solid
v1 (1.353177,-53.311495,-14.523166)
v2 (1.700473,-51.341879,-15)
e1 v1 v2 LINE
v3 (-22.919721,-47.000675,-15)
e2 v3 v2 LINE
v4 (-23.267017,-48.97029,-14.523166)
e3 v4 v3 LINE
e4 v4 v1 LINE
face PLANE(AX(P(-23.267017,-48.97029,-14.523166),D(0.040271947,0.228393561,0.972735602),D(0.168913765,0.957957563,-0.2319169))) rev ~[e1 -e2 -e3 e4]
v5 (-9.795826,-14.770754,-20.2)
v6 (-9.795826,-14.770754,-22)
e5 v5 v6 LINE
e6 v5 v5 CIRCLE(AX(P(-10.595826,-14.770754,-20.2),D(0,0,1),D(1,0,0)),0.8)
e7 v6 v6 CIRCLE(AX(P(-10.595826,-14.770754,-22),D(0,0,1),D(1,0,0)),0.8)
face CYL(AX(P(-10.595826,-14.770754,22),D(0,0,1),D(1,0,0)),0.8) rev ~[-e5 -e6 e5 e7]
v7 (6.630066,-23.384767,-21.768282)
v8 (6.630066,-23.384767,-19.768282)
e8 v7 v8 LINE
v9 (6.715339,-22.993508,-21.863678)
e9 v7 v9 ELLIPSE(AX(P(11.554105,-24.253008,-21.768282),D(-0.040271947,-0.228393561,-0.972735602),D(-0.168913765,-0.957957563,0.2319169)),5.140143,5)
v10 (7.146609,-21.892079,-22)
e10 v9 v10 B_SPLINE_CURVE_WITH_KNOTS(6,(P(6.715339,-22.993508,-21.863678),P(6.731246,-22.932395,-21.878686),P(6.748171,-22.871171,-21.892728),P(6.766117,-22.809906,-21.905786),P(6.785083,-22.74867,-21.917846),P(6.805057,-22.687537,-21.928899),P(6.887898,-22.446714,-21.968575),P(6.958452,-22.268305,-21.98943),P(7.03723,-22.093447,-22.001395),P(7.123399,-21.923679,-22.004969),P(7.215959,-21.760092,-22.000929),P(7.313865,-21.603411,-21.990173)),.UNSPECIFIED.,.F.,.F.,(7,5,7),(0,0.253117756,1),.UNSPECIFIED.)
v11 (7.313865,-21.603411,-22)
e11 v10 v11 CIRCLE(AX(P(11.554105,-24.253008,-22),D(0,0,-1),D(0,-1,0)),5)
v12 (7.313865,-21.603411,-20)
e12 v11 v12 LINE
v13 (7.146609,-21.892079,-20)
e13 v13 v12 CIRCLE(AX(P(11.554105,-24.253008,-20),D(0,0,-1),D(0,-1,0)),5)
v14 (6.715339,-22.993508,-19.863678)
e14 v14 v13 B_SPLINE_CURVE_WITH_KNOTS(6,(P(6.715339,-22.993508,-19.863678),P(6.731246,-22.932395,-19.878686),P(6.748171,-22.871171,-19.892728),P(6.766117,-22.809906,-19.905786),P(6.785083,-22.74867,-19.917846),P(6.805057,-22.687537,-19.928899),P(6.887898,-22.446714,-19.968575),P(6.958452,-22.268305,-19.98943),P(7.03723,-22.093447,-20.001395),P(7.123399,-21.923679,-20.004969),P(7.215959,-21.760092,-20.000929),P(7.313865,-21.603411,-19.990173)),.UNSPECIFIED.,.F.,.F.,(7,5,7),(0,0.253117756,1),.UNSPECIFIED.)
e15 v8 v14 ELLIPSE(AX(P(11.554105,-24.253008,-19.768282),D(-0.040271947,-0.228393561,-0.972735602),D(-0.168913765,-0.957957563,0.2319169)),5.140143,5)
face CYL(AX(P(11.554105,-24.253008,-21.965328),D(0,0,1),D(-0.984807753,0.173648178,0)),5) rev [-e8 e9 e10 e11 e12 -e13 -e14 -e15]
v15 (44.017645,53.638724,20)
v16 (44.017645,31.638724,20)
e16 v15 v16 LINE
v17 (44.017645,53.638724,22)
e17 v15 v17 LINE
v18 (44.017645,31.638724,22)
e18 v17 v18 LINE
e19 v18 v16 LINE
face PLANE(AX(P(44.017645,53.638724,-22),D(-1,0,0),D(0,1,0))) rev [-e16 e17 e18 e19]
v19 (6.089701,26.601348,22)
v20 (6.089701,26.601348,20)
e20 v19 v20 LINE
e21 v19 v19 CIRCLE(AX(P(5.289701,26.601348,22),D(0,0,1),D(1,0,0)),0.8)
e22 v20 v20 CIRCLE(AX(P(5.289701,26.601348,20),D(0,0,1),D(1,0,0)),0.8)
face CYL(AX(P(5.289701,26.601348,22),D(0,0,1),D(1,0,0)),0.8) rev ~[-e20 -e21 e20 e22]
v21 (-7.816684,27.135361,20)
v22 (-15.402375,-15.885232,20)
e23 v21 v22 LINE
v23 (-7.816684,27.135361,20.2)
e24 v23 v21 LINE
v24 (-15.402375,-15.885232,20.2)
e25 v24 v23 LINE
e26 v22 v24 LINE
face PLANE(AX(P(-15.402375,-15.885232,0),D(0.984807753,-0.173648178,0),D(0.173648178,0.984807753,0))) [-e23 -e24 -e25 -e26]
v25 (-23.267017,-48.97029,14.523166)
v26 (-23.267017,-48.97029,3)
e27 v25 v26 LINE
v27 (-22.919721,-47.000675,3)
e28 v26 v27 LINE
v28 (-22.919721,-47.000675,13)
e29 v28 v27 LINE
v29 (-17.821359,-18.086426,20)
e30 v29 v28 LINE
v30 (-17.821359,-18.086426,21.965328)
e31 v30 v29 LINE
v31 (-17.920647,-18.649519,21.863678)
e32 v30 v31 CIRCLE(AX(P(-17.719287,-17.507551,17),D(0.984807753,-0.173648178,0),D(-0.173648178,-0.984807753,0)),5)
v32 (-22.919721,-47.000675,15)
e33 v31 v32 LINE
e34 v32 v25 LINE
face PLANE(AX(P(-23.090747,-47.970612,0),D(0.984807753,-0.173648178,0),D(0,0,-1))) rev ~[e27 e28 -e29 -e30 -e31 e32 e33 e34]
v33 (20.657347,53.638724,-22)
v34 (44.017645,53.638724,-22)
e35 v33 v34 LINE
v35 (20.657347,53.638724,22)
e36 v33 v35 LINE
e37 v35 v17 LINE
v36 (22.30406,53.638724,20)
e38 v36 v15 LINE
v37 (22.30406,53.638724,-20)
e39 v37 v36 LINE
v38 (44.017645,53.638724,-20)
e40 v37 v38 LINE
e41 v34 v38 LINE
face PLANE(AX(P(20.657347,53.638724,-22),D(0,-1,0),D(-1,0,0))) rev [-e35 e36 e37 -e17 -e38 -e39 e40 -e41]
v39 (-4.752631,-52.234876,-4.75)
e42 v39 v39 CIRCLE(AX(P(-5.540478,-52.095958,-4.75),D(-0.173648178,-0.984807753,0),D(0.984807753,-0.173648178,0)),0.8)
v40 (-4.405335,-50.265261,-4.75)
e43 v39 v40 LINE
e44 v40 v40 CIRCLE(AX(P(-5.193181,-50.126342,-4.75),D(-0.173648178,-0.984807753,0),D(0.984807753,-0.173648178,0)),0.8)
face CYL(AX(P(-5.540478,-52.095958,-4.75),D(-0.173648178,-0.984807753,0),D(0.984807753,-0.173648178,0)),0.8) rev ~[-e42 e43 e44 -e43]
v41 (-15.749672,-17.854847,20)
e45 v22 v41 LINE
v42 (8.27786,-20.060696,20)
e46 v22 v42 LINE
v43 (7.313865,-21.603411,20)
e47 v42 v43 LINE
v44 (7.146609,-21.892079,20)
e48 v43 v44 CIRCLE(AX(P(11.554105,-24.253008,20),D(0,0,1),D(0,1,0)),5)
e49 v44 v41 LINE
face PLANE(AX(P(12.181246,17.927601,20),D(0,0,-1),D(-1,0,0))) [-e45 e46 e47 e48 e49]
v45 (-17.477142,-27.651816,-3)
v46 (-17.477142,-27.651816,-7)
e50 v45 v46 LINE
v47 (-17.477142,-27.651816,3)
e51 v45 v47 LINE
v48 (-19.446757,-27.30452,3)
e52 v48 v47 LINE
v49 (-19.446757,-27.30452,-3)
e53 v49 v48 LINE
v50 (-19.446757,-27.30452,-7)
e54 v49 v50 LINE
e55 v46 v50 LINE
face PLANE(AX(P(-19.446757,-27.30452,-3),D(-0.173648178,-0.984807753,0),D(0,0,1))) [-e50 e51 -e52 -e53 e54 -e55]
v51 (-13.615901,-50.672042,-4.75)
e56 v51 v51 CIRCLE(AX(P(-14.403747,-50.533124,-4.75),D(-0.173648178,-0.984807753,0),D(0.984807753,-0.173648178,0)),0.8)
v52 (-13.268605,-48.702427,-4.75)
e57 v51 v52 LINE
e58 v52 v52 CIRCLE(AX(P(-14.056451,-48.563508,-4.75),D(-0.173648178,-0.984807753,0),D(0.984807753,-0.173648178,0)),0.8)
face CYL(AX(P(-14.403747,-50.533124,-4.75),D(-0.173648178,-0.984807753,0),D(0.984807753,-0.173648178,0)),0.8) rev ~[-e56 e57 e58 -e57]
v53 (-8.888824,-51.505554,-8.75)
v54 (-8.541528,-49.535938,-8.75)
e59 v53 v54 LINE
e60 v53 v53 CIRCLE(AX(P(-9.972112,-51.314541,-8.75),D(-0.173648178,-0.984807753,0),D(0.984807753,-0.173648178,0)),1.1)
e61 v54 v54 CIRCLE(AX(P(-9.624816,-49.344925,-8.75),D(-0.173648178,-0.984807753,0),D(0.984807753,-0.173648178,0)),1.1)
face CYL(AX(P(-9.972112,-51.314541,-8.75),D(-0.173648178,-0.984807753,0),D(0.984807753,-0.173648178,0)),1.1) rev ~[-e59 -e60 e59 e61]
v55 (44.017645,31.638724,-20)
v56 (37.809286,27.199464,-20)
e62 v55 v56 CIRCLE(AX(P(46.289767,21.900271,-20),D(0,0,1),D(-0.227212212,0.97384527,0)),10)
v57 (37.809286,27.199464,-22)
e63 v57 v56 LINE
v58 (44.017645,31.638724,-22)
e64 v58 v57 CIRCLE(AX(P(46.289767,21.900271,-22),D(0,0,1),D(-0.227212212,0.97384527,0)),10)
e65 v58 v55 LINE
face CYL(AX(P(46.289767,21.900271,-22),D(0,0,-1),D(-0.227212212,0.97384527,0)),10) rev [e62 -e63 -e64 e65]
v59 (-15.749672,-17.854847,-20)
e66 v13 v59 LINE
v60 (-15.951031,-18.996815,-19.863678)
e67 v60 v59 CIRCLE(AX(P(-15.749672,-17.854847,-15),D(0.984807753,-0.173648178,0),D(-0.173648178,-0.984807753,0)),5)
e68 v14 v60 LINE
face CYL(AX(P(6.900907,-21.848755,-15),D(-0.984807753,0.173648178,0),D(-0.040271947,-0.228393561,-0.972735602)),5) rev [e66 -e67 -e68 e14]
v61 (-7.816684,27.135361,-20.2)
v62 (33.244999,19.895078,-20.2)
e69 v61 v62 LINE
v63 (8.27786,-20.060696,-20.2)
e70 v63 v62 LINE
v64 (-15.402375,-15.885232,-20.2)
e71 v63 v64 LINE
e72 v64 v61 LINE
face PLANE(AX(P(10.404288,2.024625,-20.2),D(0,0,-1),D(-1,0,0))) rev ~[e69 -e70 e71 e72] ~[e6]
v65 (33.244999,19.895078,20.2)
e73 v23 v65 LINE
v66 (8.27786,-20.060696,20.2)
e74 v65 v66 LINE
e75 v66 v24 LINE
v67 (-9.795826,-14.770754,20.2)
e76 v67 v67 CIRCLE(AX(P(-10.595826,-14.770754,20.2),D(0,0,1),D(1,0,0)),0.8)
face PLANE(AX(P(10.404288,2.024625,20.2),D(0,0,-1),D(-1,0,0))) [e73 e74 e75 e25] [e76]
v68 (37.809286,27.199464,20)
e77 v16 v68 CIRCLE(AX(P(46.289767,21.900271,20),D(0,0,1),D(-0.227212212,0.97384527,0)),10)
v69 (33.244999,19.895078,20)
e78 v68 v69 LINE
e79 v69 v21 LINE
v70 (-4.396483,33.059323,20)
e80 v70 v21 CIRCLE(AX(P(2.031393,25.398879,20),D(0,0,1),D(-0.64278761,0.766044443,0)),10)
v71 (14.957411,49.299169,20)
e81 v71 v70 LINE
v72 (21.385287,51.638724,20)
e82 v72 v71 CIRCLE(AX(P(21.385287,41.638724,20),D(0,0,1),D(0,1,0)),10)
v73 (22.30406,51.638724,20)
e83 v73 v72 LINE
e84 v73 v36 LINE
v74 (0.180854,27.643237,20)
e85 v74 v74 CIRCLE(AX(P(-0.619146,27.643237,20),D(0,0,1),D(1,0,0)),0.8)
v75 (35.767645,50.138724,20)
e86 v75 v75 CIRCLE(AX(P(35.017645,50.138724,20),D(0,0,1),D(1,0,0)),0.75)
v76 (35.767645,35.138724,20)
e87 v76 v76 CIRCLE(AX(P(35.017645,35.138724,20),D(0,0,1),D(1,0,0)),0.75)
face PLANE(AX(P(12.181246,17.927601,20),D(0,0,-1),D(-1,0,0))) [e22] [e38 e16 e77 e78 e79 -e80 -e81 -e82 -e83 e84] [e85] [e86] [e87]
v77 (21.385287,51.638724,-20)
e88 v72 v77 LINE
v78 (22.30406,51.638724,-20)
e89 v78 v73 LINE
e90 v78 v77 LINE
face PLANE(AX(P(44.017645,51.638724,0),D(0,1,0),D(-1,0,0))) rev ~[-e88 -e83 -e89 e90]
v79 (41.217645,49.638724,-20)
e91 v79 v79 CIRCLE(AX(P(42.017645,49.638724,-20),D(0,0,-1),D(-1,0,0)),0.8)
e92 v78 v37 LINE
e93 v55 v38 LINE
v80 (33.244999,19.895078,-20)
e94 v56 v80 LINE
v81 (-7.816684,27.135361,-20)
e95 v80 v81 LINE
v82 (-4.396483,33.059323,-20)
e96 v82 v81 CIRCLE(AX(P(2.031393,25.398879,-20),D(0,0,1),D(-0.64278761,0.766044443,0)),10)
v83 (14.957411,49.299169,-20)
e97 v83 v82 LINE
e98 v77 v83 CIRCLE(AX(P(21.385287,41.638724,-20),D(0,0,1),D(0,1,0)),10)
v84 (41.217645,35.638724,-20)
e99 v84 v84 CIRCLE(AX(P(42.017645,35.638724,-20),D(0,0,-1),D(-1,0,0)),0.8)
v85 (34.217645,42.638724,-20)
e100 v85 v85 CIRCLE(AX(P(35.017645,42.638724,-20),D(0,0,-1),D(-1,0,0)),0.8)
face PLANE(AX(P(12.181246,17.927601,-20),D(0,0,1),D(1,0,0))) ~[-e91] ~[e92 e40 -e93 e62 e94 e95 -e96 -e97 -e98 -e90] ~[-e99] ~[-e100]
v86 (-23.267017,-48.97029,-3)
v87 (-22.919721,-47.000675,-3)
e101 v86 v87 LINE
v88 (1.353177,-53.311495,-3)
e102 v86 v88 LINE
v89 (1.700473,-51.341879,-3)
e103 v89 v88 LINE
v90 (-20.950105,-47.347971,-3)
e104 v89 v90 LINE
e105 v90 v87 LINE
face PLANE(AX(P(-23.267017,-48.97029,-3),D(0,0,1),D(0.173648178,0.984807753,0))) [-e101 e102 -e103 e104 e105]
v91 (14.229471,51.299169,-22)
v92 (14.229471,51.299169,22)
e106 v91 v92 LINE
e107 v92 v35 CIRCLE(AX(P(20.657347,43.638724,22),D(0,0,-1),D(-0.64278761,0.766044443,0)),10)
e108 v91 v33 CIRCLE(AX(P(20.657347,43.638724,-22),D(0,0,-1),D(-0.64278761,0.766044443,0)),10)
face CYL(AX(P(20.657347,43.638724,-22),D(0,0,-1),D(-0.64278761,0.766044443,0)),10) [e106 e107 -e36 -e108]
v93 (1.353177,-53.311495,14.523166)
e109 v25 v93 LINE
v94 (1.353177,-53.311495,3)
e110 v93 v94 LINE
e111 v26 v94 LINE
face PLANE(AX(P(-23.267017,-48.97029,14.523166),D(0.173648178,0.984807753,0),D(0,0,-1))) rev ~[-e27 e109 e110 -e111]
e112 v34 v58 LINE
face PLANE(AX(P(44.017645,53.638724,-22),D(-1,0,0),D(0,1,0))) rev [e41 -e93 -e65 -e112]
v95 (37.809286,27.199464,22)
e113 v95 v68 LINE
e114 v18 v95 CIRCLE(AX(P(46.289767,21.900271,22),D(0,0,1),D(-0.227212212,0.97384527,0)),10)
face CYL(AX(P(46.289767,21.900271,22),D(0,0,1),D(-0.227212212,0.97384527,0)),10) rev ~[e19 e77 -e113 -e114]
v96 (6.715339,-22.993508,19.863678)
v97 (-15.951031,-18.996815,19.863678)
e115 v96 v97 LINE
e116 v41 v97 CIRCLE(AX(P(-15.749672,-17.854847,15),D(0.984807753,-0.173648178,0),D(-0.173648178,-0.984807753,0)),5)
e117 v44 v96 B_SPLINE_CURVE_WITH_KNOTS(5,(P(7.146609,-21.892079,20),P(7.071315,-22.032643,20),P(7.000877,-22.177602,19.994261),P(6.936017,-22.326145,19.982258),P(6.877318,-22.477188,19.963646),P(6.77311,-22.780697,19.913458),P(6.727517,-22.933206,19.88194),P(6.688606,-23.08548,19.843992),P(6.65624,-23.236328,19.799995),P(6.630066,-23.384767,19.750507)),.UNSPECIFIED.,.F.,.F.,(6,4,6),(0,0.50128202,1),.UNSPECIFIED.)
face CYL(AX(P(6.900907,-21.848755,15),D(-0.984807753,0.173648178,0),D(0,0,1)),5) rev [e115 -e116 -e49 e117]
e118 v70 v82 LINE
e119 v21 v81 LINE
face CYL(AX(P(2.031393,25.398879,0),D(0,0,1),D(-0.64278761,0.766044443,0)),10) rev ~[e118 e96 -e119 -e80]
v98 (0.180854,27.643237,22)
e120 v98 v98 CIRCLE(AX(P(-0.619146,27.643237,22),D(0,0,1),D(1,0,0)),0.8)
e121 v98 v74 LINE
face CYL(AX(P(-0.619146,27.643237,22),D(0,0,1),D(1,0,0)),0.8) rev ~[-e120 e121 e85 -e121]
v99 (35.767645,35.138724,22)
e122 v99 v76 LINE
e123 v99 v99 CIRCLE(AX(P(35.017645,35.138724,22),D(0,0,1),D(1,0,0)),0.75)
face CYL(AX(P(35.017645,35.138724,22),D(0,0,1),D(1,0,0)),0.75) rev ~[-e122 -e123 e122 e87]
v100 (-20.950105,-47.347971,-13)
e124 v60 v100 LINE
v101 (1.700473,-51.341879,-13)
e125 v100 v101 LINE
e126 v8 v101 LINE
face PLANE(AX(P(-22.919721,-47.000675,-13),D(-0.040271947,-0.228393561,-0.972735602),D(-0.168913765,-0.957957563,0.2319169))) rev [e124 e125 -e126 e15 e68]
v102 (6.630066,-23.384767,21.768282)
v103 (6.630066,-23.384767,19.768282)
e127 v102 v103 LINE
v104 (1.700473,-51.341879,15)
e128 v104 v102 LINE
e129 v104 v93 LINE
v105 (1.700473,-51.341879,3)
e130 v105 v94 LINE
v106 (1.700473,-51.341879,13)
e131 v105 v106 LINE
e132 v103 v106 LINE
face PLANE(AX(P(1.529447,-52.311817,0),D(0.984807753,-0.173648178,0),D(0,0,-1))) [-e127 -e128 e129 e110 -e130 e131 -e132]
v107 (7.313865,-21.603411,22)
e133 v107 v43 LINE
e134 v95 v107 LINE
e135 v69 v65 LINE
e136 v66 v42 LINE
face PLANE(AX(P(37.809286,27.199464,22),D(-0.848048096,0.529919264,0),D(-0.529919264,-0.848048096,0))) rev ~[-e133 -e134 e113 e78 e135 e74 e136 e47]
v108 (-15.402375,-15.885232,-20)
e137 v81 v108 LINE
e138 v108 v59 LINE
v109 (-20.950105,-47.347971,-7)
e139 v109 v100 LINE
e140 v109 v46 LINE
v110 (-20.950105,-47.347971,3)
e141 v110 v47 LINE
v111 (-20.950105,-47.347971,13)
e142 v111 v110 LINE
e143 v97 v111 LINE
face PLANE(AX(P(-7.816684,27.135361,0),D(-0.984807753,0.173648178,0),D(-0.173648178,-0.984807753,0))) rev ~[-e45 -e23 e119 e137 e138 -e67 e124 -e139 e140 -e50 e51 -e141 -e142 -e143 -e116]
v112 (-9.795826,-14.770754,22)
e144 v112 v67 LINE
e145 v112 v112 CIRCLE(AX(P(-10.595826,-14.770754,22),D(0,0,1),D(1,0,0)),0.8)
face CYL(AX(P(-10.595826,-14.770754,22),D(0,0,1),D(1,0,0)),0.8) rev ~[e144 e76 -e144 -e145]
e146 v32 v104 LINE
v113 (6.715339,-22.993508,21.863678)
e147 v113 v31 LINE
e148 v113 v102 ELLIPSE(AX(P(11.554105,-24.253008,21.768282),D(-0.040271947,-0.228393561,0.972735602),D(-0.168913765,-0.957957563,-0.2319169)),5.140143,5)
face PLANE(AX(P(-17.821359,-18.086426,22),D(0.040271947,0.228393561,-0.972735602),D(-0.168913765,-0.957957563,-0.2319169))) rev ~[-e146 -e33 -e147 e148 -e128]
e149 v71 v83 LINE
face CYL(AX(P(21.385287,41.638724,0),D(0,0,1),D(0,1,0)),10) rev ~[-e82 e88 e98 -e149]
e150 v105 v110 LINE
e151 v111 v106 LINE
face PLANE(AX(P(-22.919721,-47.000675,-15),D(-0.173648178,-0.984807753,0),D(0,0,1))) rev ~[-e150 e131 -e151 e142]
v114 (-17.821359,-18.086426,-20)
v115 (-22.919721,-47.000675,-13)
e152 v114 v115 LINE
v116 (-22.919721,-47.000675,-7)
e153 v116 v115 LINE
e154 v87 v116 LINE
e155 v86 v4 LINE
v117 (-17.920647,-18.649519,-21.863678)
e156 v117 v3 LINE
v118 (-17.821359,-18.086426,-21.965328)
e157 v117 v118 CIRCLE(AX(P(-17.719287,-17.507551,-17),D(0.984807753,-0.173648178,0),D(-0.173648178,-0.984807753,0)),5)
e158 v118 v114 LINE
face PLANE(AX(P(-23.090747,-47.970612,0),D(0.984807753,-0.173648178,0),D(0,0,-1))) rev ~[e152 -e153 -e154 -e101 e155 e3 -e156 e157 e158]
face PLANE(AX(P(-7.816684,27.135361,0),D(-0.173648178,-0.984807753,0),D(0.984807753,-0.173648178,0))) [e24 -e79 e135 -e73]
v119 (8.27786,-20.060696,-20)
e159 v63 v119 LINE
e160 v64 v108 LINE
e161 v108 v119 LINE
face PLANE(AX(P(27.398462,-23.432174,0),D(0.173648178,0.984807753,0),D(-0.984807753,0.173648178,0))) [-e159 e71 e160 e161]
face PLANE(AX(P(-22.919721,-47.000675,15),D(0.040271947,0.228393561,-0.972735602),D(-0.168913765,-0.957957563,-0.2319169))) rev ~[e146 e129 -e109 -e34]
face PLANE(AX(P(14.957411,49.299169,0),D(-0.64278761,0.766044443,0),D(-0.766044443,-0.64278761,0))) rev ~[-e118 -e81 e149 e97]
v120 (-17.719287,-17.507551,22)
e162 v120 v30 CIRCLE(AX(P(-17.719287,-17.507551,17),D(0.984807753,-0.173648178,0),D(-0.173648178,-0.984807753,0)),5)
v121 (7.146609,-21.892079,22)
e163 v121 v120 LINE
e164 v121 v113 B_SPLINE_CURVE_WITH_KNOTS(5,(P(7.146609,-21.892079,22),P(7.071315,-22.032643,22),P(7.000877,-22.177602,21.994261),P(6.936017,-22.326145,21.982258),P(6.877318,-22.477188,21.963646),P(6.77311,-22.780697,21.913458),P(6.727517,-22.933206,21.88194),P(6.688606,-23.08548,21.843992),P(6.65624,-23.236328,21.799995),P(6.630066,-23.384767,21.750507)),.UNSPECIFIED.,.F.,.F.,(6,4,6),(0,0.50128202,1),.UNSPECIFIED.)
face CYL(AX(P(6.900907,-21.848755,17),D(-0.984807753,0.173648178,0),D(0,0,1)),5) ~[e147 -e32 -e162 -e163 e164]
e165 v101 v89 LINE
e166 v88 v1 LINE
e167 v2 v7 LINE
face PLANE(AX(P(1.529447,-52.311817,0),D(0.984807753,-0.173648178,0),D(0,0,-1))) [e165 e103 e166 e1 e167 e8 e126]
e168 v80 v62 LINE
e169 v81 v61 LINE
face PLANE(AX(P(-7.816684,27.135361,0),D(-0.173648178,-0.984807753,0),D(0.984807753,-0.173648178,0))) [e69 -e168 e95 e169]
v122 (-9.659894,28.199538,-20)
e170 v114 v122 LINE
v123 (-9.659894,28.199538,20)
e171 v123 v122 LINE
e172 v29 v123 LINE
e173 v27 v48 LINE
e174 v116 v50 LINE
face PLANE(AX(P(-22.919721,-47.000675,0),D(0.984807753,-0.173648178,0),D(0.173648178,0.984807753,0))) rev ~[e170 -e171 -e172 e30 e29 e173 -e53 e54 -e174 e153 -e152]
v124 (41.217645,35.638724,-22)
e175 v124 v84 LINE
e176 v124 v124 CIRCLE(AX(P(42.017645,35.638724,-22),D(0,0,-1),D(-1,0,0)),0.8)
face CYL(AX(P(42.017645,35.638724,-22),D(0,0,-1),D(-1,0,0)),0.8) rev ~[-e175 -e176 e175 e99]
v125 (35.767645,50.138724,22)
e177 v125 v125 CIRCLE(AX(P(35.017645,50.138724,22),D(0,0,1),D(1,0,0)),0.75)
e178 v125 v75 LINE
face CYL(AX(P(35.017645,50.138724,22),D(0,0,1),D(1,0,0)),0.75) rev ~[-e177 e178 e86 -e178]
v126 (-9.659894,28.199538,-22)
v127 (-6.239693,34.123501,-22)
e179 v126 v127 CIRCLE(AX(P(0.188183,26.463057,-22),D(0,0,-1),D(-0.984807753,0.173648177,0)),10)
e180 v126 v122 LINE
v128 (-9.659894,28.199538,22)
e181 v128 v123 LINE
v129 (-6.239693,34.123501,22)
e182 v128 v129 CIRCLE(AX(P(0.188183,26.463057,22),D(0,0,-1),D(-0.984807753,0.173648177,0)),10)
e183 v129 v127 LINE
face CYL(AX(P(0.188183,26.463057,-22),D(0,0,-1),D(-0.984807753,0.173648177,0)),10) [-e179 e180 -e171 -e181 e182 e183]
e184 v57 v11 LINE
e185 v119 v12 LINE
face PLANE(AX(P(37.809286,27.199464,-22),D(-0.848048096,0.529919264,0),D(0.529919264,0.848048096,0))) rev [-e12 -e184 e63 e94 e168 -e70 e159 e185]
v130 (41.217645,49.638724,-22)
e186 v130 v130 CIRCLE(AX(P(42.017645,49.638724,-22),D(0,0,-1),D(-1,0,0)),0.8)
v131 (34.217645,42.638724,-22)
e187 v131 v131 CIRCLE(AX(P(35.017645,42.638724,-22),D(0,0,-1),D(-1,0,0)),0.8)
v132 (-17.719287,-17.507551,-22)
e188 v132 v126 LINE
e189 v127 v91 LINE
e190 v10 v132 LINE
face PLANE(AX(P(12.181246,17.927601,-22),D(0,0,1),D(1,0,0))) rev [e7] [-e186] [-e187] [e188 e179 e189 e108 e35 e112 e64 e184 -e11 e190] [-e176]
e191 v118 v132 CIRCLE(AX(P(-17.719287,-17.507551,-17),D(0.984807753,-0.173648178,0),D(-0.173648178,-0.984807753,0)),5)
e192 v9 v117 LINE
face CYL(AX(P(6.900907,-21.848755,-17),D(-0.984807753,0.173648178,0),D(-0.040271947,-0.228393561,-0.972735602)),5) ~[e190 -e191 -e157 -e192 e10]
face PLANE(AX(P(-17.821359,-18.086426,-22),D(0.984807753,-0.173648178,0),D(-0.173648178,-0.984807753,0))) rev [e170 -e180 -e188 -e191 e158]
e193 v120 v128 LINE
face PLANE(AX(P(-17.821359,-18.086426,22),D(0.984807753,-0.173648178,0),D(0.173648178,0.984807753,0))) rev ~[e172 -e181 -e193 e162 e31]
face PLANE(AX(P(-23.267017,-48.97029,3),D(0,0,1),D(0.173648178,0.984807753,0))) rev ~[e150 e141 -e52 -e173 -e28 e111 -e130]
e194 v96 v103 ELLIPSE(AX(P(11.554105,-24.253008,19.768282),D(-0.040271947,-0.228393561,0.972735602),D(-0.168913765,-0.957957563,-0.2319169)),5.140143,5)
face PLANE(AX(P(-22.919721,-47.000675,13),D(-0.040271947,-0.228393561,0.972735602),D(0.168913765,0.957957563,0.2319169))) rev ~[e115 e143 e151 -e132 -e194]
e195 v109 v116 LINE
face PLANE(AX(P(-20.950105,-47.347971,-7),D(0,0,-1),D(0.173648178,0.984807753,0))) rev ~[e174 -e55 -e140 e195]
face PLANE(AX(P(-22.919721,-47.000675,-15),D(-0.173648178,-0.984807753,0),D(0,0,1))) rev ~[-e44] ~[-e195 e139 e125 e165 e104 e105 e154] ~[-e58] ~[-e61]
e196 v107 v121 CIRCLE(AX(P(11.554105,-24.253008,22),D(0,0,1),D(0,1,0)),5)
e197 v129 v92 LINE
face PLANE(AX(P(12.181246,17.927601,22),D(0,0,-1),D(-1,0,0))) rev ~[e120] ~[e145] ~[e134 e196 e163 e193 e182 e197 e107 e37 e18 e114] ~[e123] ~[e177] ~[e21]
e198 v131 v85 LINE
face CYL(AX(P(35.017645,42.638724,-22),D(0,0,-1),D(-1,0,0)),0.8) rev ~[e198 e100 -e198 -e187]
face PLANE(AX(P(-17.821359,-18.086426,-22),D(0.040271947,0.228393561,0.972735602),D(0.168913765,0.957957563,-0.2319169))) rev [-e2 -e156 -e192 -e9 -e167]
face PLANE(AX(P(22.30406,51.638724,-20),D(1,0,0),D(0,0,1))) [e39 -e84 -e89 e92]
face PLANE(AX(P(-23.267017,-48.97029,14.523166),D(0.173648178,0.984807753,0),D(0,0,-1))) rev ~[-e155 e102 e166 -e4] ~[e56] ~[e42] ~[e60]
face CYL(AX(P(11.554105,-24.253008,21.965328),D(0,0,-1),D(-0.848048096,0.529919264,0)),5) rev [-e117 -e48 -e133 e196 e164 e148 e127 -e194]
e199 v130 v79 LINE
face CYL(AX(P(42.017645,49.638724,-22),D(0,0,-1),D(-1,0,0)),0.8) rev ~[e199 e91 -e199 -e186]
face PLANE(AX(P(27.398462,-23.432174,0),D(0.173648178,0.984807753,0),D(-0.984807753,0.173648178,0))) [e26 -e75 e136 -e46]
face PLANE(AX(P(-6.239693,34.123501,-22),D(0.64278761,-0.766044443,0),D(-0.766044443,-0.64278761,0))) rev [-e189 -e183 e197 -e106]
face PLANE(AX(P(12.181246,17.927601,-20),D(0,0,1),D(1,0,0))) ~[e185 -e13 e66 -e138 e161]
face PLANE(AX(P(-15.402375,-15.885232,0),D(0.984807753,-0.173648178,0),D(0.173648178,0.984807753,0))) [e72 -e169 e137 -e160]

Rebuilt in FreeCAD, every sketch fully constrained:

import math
import FreeCAD as App
import Part
import Sketcher
Q = App.Units.Quantity


def edges_at(feature, points):
    """Names of the edges that pass closest to the given points."""
    edges = feature.Shape.Edges
    near = lambda p: min(range(len(edges)), key=lambda i: edges[i].distToShape(Part.Vertex(*p))[0])
    return sorted({f"Edge{near(p) + 1}" for p in points})


def add_polygon(sketch, points):
    """Adds a closed chain of lines whose ends are joined by coincident constraints."""
    first, n = sketch.GeometryCount, len(points)
    for a, b in zip(points, points[1:] + points[:1]):
        sketch.addGeometry(Part.LineSegment(App.Vector(*a, 0), App.Vector(*b, 0)), False)
    for i in range(n):
        sketch.addConstraint(Sketcher.Constraint("Coincident", first + i, 2, first + (i + 1) % n, 1))

doc = App.newDocument("Part")
body = doc.addObject("PartDesign::Body", "Body")

# Sketch on XY plane
sketch1 = body.newObject("Sketcher::SketchObject", "Sketch")
sketch1.AttachmentSupport = (doc.getObject("XY_Plane"), [""])
sketch1.MapMode = "FlatFace"
sketch1.addGeometry(Part.LineSegment(App.Vector(44, 53.6, 0), App.Vector(20.7, 53.6, 0)), False)
sketch1.addGeometry(Part.ArcOfCircle(Part.Circle(App.Vector(20.7, 43.6, 0), App.Vector(0, 0, 1), 10), math.radians(90), math.radians(130)), False)
sketch1.addGeometry(Part.LineSegment(App.Vector(14.2, 51.3, 0), App.Vector(-6.2, 34.1, 0)), False)
sketch1.addGeometry(Part.ArcOfCircle(Part.Circle(App.Vector(0.2, 26.5, 0), App.Vector(0, 0, 1), 10), math.radians(130), math.radians(170)), False)
sketch1.addGeometry(Part.LineSegment(App.Vector(-9.7, 28.2, 0), App.Vector(-22.9, -47, 0)), False)
sketch1.addGeometry(Part.LineSegment(App.Vector(-22.9, -47, 0), App.Vector(-21, -47.3, 0)), False)
sketch1.addGeometry(Part.LineSegment(App.Vector(-21, -47.3, 0), App.Vector(-7.8, 27.1, 0)), False)
sketch1.addGeometry(Part.ArcOfCircle(Part.Circle(App.Vector(2, 25.4, 0), App.Vector(0, 0, 1), 10), math.radians(130), math.radians(170)), False)
sketch1.addGeometry(Part.LineSegment(App.Vector(-4.4, 33.1, 0), App.Vector(15, 49.3, 0)), False)
sketch1.addGeometry(Part.ArcOfCircle(Part.Circle(App.Vector(21.4, 41.6, 0), App.Vector(0, 0, 1), 10), math.radians(90), math.radians(130)), False)
sketch1.addGeometry(Part.LineSegment(App.Vector(21.4, 51.6, 0), App.Vector(44, 51.6, 0)), False)
sketch1.addGeometry(Part.LineSegment(App.Vector(44, 51.6, 0), App.Vector(44, 53.6, 0)), False)
sketch1.addConstraint(Sketcher.Constraint("Tangent", 0, 2, 1, 1))
sketch1.addConstraint(Sketcher.Constraint("Tangent", 1, 2, 2, 1))
sketch1.addConstraint(Sketcher.Constraint("Tangent", 2, 2, 3, 1))
sketch1.addConstraint(Sketcher.Constraint("Tangent", 3, 2, 4, 1))
sketch1.addConstraint(Sketcher.Constraint("Coincident", 4, 2, 5, 1))
sketch1.addConstraint(Sketcher.Constraint("Coincident", 5, 2, 6, 1))
sketch1.addConstraint(Sketcher.Constraint("Tangent", 6, 2, 7, 2))
sketch1.addConstraint(Sketcher.Constraint("Tangent", 7, 1, 8, 1))
sketch1.addConstraint(Sketcher.Constraint("Tangent", 8, 2, 9, 2))
sketch1.addConstraint(Sketcher.Constraint("Tangent", 9, 1, 10, 1))
sketch1.addConstraint(Sketcher.Constraint("Coincident", 10, 2, 11, 1))
sketch1.addConstraint(Sketcher.Constraint("Coincident", 11, 2, 0, 1))
sketch1.addConstraint(Sketcher.Constraint("Horizontal", 0))
sketch1.addConstraint(Sketcher.Constraint("Horizontal", 10))
sketch1.addConstraint(Sketcher.Constraint("Vertical", 11))
sketch1.addConstraint(Sketcher.Constraint("Equal", 1, 3))
sketch1.addConstraint(Sketcher.Constraint("Equal", 3, 7))
sketch1.addConstraint(Sketcher.Constraint("Equal", 7, 9))
sketch1.addConstraint(Sketcher.Constraint("Perpendicular", 4, 5))
sketch1.addConstraint(Sketcher.Constraint("Perpendicular", 5, 6))
sketch1.addConstraint(Sketcher.Constraint("Parallel", 2, 8))
sketch1.addConstraint(Sketcher.Constraint("Radius", 1, 10.0))
sketch1.addConstraint(Sketcher.Constraint("DistanceY", 11, 1, 11, 2, 2.0))
sketch1.addConstraint(Sketcher.Constraint("Angle", 2, Q("-140 deg")))
sketch1.addConstraint(Sketcher.Constraint("Angle", 4, Q("-100 deg")))
sketch1.addConstraint(Sketcher.Constraint("Distance", 5, 2.0))
sketch1.addConstraint(Sketcher.Constraint("DistanceY", -1, 1, 2, 2, 34.123501))
sketch1.addConstraint(Sketcher.Constraint("DistanceY", 4, 2, 9, 3, 88.639399))
sketch1.addConstraint(Sketcher.Constraint("DistanceX", 5, 2, 7, 3, 22.981499))
sketch1.addConstraint(Sketcher.Constraint("DistanceX", 0, 2, 0, 1, 23.360298))
sketch1.addConstraint(Sketcher.Constraint("DistanceX", 10, 1, 10, 2, 22.632357))
sketch1.addConstraint(Sketcher.Constraint("DistanceX", -1, 1, 1, 2, 14.229471))
pad1 = body.newObject("PartDesign::Pad", "Pad")
pad1.Profile = sketch1
pad1.Length = 40
pad1.Midplane = True

# Sketch on an angled plane
sketch2 = body.newObject("Sketcher::SketchObject", "Sketch001")
sketch2.Placement = App.Placement(App.Vector(-14.191018, 2.502259, 0), App.Rotation(App.Vector(0, 0, 1), App.Vector(0.173648178, 0.984807753, 0), App.Vector(-0.984807753, 0.173648178, 0), "ZXY"))
add_polygon(sketch2, [(13, -50), (20, -50), (20, -21)])  # lines 0-2
sketch2.addConstraint(Sketcher.Constraint("Horizontal", 0))
sketch2.addConstraint(Sketcher.Constraint("Vertical", 1))
sketch2.addConstraint(Sketcher.Constraint("DistanceX", 0, 1, 0, 2, 7.0))
sketch2.addConstraint(Sketcher.Constraint("DistanceX", -1, 1, 0, 2, 20.0))
sketch2.addConstraint(Sketcher.Constraint("DistanceY", 1, 2, -1, 1, 20.906299))
sketch2.addConstraint(Sketcher.Constraint("DistanceY", 1, 1, 1, 2, 29.360298))
pocket1 = body.newObject("PartDesign::Pocket", "Pocket")
pocket1.Profile = sketch2
pocket1.Length = 2
doc.recompute()

mirrored = body.newObject("PartDesign::Mirrored", "Mirrored")
mirrored.Originals = [pocket1]
mirrored.MirrorPlane = (doc.getObject("XY_Plane"), [""])
body.Tip = mirrored

# Sketch on XY plane
sketch3 = body.newObject("Sketcher::SketchObject", "Sketch002")
sketch3.AttachmentSupport = (doc.getObject("XY_Plane"), [""])
sketch3.MapMode = "FlatFace"
sketch3.AttachmentOffset = App.Placement(App.Vector(0, 0, 22), App.Rotation())
sketch3.addGeometry(Part.LineSegment(App.Vector(44, 32, 0), App.Vector(44, 54, 0)), False)
sketch3.addGeometry(Part.LineSegment(App.Vector(44, 54, 0), App.Vector(21, 54, 0)), False)
sketch3.addGeometry(Part.ArcOfCircle(Part.Circle(App.Vector(21, 44, 0), App.Vector(0, 0, 1), 10), math.radians(90), math.radians(130)), False)
sketch3.addGeometry(Part.LineSegment(App.Vector(14, 51, 0), App.Vector(-6, 34, 0)), False)
sketch3.addGeometry(Part.ArcOfCircle(Part.Circle(App.Vector(0, 26, 0), App.Vector(0, 0, 1), 10), math.radians(130), math.radians(170)), False)
sketch3.addGeometry(Part.LineSegment(App.Vector(-10, 28, 0), App.Vector(-18, -18, 0)), False)
sketch3.addGeometry(Part.LineSegment(App.Vector(-18, -18, 0), App.Vector(7, -22, 0)), False)
sketch3.addGeometry(Part.LineSegment(App.Vector(7, -22, 0), App.Vector(38, 27, 0)), False)
sketch3.addGeometry(Part.ArcOfCircle(Part.Circle(App.Vector(46, 22, 0), App.Vector(0, 0, 1), 10), math.radians(103), math.radians(148)), False)
sketch3.addConstraint(Sketcher.Constraint("Coincident", 0, 2, 1, 1))
sketch3.addConstraint(Sketcher.Constraint("Tangent", 1, 2, 2, 1))
sketch3.addConstraint(Sketcher.Constraint("Tangent", 2, 2, 3, 1))
sketch3.addConstraint(Sketcher.Constraint("Tangent", 3, 2, 4, 1))
sketch3.addConstraint(Sketcher.Constraint("Tangent", 4, 2, 5, 1))
sketch3.addConstraint(Sketcher.Constraint("Coincident", 5, 2, 6, 1))
sketch3.addConstraint(Sketcher.Constraint("Coincident", 6, 2, 7, 1))
sketch3.addConstraint(Sketcher.Constraint("Tangent", 7, 2, 8, 2))
sketch3.addConstraint(Sketcher.Constraint("Coincident", 8, 1, 0, 1))
sketch3.addConstraint(Sketcher.Constraint("Vertical", 0))
sketch3.addConstraint(Sketcher.Constraint("Horizontal", 1))
sketch3.addConstraint(Sketcher.Constraint("Equal", 2, 4))
sketch3.addConstraint(Sketcher.Constraint("Equal", 4, 8))
sketch3.addConstraint(Sketcher.Constraint("Perpendicular", 5, 6))
sketch3.addConstraint(Sketcher.Constraint("Radius", 2, 10.0))
sketch3.addConstraint(Sketcher.Constraint("DistanceY", 0, 1, 0, 2, 22.0))
sketch3.addConstraint(Sketcher.Constraint("Angle", 3, Q("-140 deg")))
sketch3.addConstraint(Sketcher.Constraint("Angle", 5, Q("-100 deg")))
sketch3.addConstraint(Sketcher.Constraint("Angle", 7, Q("58 deg")))
sketch3.addConstraint(Sketcher.Constraint("Distance", 5, 47.0))
sketch3.addConstraint(Sketcher.Constraint("Distance", 6, 25.0))
sketch3.addConstraint(Sketcher.Constraint("Distance", 7, 58.519198))
sketch3.addConstraint(Sketcher.Constraint("DistanceY", -1, 1, 3, 2, 34.123501))
sketch3.addConstraint(Sketcher.Constraint("DistanceX", 1, 2, 1, 1, 23.360298))
sketch3.addConstraint(Sketcher.Constraint("DistanceX", -1, 1, 2, 2, 14.229471))
pad2 = body.newObject("PartDesign::Pad", "Pad001")
pad2.Profile = sketch3
pad2.Length = 2
pad2.Reversed = True

# Sketch on an angled plane
sketch4 = body.newObject("Sketcher::SketchObject", "Sketch003")
sketch4.Placement = App.Placement(App.Vector(-14.191018, 2.502259, 0), App.Rotation(App.Vector(0, 0, 1), App.Vector(0.173648178, 0.984807753, 0), App.Vector(-0.984807753, 0.173648178, 0), "ZXY"))
add_polygon(sketch4, [(15, -50.3), (22, -20.9), (20, -20.9), (13, -50.3)])  # lines 0-3
sketch4.addConstraint(Sketcher.Constraint("Horizontal", 1))
sketch4.addConstraint(Sketcher.Constraint("Horizontal", 3))
sketch4.addConstraint(Sketcher.Constraint("Parallel", 0, 2))
sketch4.addConstraint(Sketcher.Constraint("DistanceX", 1, 2, 1, 1, 2.0))
sketch4.addConstraint(Sketcher.Constraint("DistanceX", -1, 1, 0, 2, 22.0))
sketch4.addConstraint(Sketcher.Constraint("DistanceX", -1, 1, 2, 2, 13.0))
sketch4.addConstraint(Sketcher.Constraint("DistanceY", 0, 2, -1, 1, 20.906299))
sketch4.addConstraint(Sketcher.Constraint("Distance", 0, 30.183225))
pad3 = body.newObject("PartDesign::Pad", "Pad002")
pad3.Profile = sketch4
pad3.Length = 33
pad3.Reversed = True
doc.recompute()

mirrored2 = body.newObject("PartDesign::Mirrored", "Mirrored001")
mirrored2.Originals = [pad2, pad3]
mirrored2.MirrorPlane = (doc.getObject("XY_Plane"), [""])
body.Tip = mirrored2

# Sketch on XY plane
sketch5 = body.newObject("Sketcher::SketchObject", "Sketch004")
sketch5.AttachmentSupport = (doc.getObject("XY_Plane"), [""])
sketch5.MapMode = "FlatFace"
add_polygon(sketch5, [(7, -22), (2, -51), (10, -53), (15, -24)])  # lines 0-3
sketch5.addConstraint(Sketcher.Constraint("Perpendicular", 0, 1))
sketch5.addConstraint(Sketcher.Constraint("Perpendicular", 1, 2))
sketch5.addConstraint(Sketcher.Constraint("Perpendicular", 2, 3))
sketch5.addConstraint(Sketcher.Constraint("Angle", 0, Q("-100 deg")))
sketch5.addConstraint(Sketcher.Constraint("Distance", 1, 8.0))
sketch5.addConstraint(Sketcher.Constraint("DistanceX", 3, 2, 1, 2, 2.7801))
sketch5.addConstraint(Sketcher.Constraint("DistanceY", 0, 2, -1, 1, 51.341879))
sketch5.addConstraint(Sketcher.Constraint("DistanceX", -1, 1, 0, 2, 1.700473))
pocket2 = body.newObject("PartDesign::Pocket", "Pocket001")
pocket2.Profile = sketch5
pocket2.Length = 45
pocket2.Midplane = True

# Sketch on an angled plane
sketch6 = body.newObject("Sketcher::SketchObject", "Sketch005")
sketch6.Placement = App.Placement(App.Vector(-14.191018, 2.502259, 0), App.Rotation(App.Vector(0, 0, 1), App.Vector(0.173648178, 0.984807753, 0), App.Vector(-0.984807753, 0.173648178, 0), "ZXY"))
add_polygon(sketch6, [(15, -50.3), (-15, -50.3), (-14.5, -52.3), (14.5, -52.3)])  # lines 0-3
sketch6.addConstraint(Sketcher.Constraint("Horizontal", 0))
sketch6.addConstraint(Sketcher.Constraint("Horizontal", 2))
sketch6.addConstraint(Sketcher.Constraint("Equal", 1, 3))
sketch6.addConstraint(Sketcher.Constraint("DistanceX", 0, 2, 0, 1, 30.0))
sketch6.addConstraint(Sketcher.Constraint("DistanceX", 0, 2, -1, 1, 15.0))
sketch6.addConstraint(Sketcher.Constraint("DistanceY", 1, 2, 0, 2, 2.0))
sketch6.addConstraint(Sketcher.Constraint("DistanceX", 2, 1, 2, 2, 29.046331))
sketch6.addConstraint(Sketcher.Constraint("DistanceY", 0, 2, -1, 1, 50.266597))
pad4 = body.newObject("PartDesign::Pad", "Pad003")
pad4.Profile = sketch6
pad4.Length = 25
pad4.Reversed = True

# Sketch on an angled plane
sketch7 = body.newObject("Sketcher::SketchObject", "Sketch006")
sketch7.Placement = App.Placement(App.Vector(-14.191018, 2.502259, 0), App.Rotation(App.Vector(0, 0, 1), App.Vector(0.173648178, 0.984807753, 0), App.Vector(-0.984807753, 0.173648178, 0), "ZXY"))
add_polygon(sketch7, [(-3, -30), (-3, -52), (3, -52), (3, -30)])  # lines 0-3
sketch7.addConstraint(Sketcher.Constraint("Vertical", 0))
sketch7.addConstraint(Sketcher.Constraint("Horizontal", 1))
sketch7.addConstraint(Sketcher.Constraint("Vertical", 2))
sketch7.addConstraint(Sketcher.Constraint("Horizontal", 3))
sketch7.addConstraint(Sketcher.Constraint("DistanceX", 1, 1, 1, 2, 6.0))
sketch7.addConstraint(Sketcher.Constraint("DistanceY", 0, 2, 0, 1, 22.0))
sketch7.addConstraint(Sketcher.Constraint("DistanceX", 0, 2, -1, 1, 3.0))
sketch7.addConstraint(Sketcher.Constraint("DistanceY", 0, 2, -1, 1, 52.266597))
pocket3 = body.newObject("PartDesign::Pocket", "Pocket002")
pocket3.Profile = sketch7
pocket3.Type = "ThroughAll"

# Sketch on XY plane
sketch8 = body.newObject("Sketcher::SketchObject", "Sketch007")
sketch8.AttachmentSupport = (doc.getObject("XY_Plane"), [""])
sketch8.MapMode = "FlatFace"
sketch8.AttachmentOffset = App.Placement(App.Vector(0, 0, 22), App.Rotation())
sketch8.addGeometry(Part.Circle(App.Vector(35, 50.1, 0), App.Vector(0, 0, 1), 0.8), False)
sketch8.addConstraint(Sketcher.Constraint("Diameter", 0, 1.5))
sketch8.addConstraint(Sketcher.Constraint("DistanceX", -1, 1, 0, 3, 35.017645))
sketch8.addConstraint(Sketcher.Constraint("DistanceY", -1, 1, 0, 3, 50.138724))
pocket4 = body.newObject("PartDesign::Pocket", "Pocket003")
pocket4.Profile = sketch8
pocket4.Type = "UpToFirst"

# Sketch on XY plane
sketch9 = body.newObject("Sketcher::SketchObject", "Sketch008")
sketch9.AttachmentSupport = (doc.getObject("XY_Plane"), [""])
sketch9.MapMode = "FlatFace"
sketch9.AttachmentOffset = App.Placement(App.Vector(0, 0, 22), App.Rotation())
sketch9.addGeometry(Part.Circle(App.Vector(35, 35.1, 0), App.Vector(0, 0, 1), 0.8), False)
sketch9.addConstraint(Sketcher.Constraint("Diameter", 0, 1.5))
sketch9.addConstraint(Sketcher.Constraint("DistanceX", -1, 1, 0, 3, 35.017645))
sketch9.addConstraint(Sketcher.Constraint("DistanceY", -1, 1, 0, 3, 35.138724))
pocket5 = body.newObject("PartDesign::Pocket", "Pocket004")
pocket5.Profile = sketch9
pocket5.Type = "UpToFirst"

# Sketch on XY plane
sketch10 = body.newObject("Sketcher::SketchObject", "Sketch009")
sketch10.AttachmentSupport = (doc.getObject("XY_Plane"), [""])
sketch10.MapMode = "FlatFace"
sketch10.AttachmentOffset = App.Placement(App.Vector(0, 0, -22), App.Rotation())
sketch10.addGeometry(Part.Circle(App.Vector(42, 49.6, 0), App.Vector(0, 0, 1), 0.8), False)
sketch10.addConstraint(Sketcher.Constraint("Diameter", 0, 1.6))
sketch10.addConstraint(Sketcher.Constraint("DistanceX", -1, 1, 0, 3, 42.017645))
sketch10.addConstraint(Sketcher.Constraint("DistanceY", -1, 1, 0, 3, 49.638724))
pocket6 = body.newObject("PartDesign::Pocket", "Pocket005")
pocket6.Profile = sketch10
pocket6.Type = "UpToFirst"
pocket6.Reversed = True

# Sketch on XY plane
sketch11 = body.newObject("Sketcher::SketchObject", "Sketch010")
sketch11.AttachmentSupport = (doc.getObject("XY_Plane"), [""])
sketch11.MapMode = "FlatFace"
sketch11.AttachmentOffset = App.Placement(App.Vector(0, 0, -22), App.Rotation())
sketch11.addGeometry(Part.Circle(App.Vector(42, 35.6, 0), App.Vector(0, 0, 1), 0.8), False)
sketch11.addConstraint(Sketcher.Constraint("Diameter", 0, 1.6))
sketch11.addConstraint(Sketcher.Constraint("DistanceX", -1, 1, 0, 3, 42.017645))
sketch11.addConstraint(Sketcher.Constraint("DistanceY", -1, 1, 0, 3, 35.638724))
pocket7 = body.newObject("PartDesign::Pocket", "Pocket006")
pocket7.Profile = sketch11
pocket7.Type = "UpToFirst"
pocket7.Reversed = True

# Sketch on XY plane
sketch12 = body.newObject("Sketcher::SketchObject", "Sketch011")
sketch12.AttachmentSupport = (doc.getObject("XY_Plane"), [""])
sketch12.MapMode = "FlatFace"
sketch12.AttachmentOffset = App.Placement(App.Vector(0, 0, -22), App.Rotation())
sketch12.addGeometry(Part.Circle(App.Vector(35, 42.6, 0), App.Vector(0, 0, 1), 0.8), False)
sketch12.addConstraint(Sketcher.Constraint("Diameter", 0, 1.6))
sketch12.addConstraint(Sketcher.Constraint("DistanceX", -1, 1, 0, 3, 35.017645))
sketch12.addConstraint(Sketcher.Constraint("DistanceY", -1, 1, 0, 3, 42.638724))
pocket8 = body.newObject("PartDesign::Pocket", "Pocket007")
pocket8.Profile = sketch12
pocket8.Type = "UpToFirst"
pocket8.Reversed = True

# Sketch on XZ plane
sketch13 = body.newObject("Sketcher::SketchObject", "Sketch012")
sketch13.AttachmentSupport = (doc.getObject("XZ_Plane"), [""])
sketch13.MapMode = "FlatFace"
sketch13.AttachmentOffset = App.Placement(App.Vector(0, 0, -51.638724), App.Rotation())
add_polygon(sketch13, [(22, 20), (22, -20), (44, -20), (44, 20)])  # lines 0-3
sketch13.addConstraint(Sketcher.Constraint("Vertical", 0))
sketch13.addConstraint(Sketcher.Constraint("Horizontal", 1))
sketch13.addConstraint(Sketcher.Constraint("Vertical", 2))
sketch13.addConstraint(Sketcher.Constraint("Horizontal", 3))
sketch13.addConstraint(Sketcher.Constraint("DistanceY", 0, 2, 0, 1, 40.0))
sketch13.addConstraint(Sketcher.Constraint("DistanceY", 0, 2, -1, 1, 20.0))
sketch13.addConstraint(Sketcher.Constraint("DistanceX", 1, 1, 1, 2, 21.713584))
sketch13.addConstraint(Sketcher.Constraint("DistanceX", -1, 1, 0, 2, 22.30406))
pocket9 = body.newObject("PartDesign::Pocket", "Pocket008")
pocket9.Profile = sketch13
pocket9.Type = "UpToFirst"

# Sketch on XY plane
sketch14 = body.newObject("Sketcher::SketchObject", "Sketch013")
sketch14.AttachmentSupport = (doc.getObject("XY_Plane"), [""])
sketch14.MapMode = "FlatFace"
sketch14.AttachmentOffset = App.Placement(App.Vector(0, 0, 22), App.Rotation())
sketch14.addGeometry(Part.Circle(App.Vector(-0.6, 27.6, 0), App.Vector(0, 0, 1), 0.8), False)
sketch14.addConstraint(Sketcher.Constraint("Diameter", 0, 1.6))
sketch14.addConstraint(Sketcher.Constraint("DistanceX", 0, 3, -1, 1, 0.619146))
sketch14.addConstraint(Sketcher.Constraint("DistanceY", -1, 1, 0, 3, 27.643237))
pocket10 = body.newObject("PartDesign::Pocket", "Pocket009")
pocket10.Profile = sketch14
pocket10.Type = "UpToFirst"

# Sketch on XY plane
sketch15 = body.newObject("Sketcher::SketchObject", "Sketch014")
sketch15.AttachmentSupport = (doc.getObject("XY_Plane"), [""])
sketch15.MapMode = "FlatFace"
sketch15.AttachmentOffset = App.Placement(App.Vector(0, 0, 22), App.Rotation())
sketch15.addGeometry(Part.Circle(App.Vector(5.3, 26.6, 0), App.Vector(0, 0, 1), 0.8), False)
sketch15.addConstraint(Sketcher.Constraint("Diameter", 0, 1.6))
sketch15.addConstraint(Sketcher.Constraint("DistanceX", -1, 1, 0, 3, 5.289701))
sketch15.addConstraint(Sketcher.Constraint("DistanceY", -1, 1, 0, 3, 26.601348))
pocket11 = body.newObject("PartDesign::Pocket", "Pocket010")
pocket11.Profile = sketch15
pocket11.Type = "UpToFirst"

# Sketch on XY plane
sketch16 = body.newObject("Sketcher::SketchObject", "Sketch015")
sketch16.AttachmentSupport = (doc.getObject("XY_Plane"), [""])
sketch16.MapMode = "FlatFace"
sketch16.AttachmentOffset = App.Placement(App.Vector(0, 0, 22), App.Rotation())
sketch16.addGeometry(Part.Circle(App.Vector(-10.6, -14.8, 0), App.Vector(0, 0, 1), 0.8), False)
sketch16.addConstraint(Sketcher.Constraint("Diameter", 0, 1.6))
sketch16.addConstraint(Sketcher.Constraint("DistanceX", 0, 3, -1, 1, 10.595826))
sketch16.addConstraint(Sketcher.Constraint("DistanceY", 0, 3, -1, 1, 14.770754))
pocket12 = body.newObject("PartDesign::Pocket", "Pocket011")
pocket12.Profile = sketch16
pocket12.Type = "ThroughAll"

# Sketch on an angled plane
sketch17 = body.newObject("Sketcher::SketchObject", "Sketch016")
sketch17.Placement = App.Placement(App.Vector(-12.221402, 2.154963, 0), App.Rotation(App.Vector(0, 0, -1), App.Vector(0.173648178, 0.984807753, 0), App.Vector(0.984807753, -0.173648178, 0), "ZXY"))
add_polygon(sketch17, [(3, -30.3), (3, -50.3), (7, -50.3), (7, -30.3)])  # lines 0-3
sketch17.addConstraint(Sketcher.Constraint("Vertical", 0))
sketch17.addConstraint(Sketcher.Constraint("Horizontal", 1))
sketch17.addConstraint(Sketcher.Constraint("Vertical", 2))
sketch17.addConstraint(Sketcher.Constraint("Horizontal", 3))
sketch17.addConstraint(Sketcher.Constraint("DistanceX", 1, 1, 1, 2, 4.0))
sketch17.addConstraint(Sketcher.Constraint("DistanceY", 0, 2, 0, 1, 20.0))
sketch17.addConstraint(Sketcher.Constraint("DistanceX", -1, 1, 0, 2, 3.0))
sketch17.addConstraint(Sketcher.Constraint("DistanceY", 0, 2, -1, 1, 50.266597))
pocket13 = body.newObject("PartDesign::Pocket", "Pocket012")
pocket13.Profile = sketch17
pocket13.Type = "ThroughAll"

# Sketch on an angled plane
sketch18 = body.newObject("Sketcher::SketchObject", "Sketch017")
sketch18.Placement = App.Placement(App.Vector(-9.075999, -51.47255, 0), App.Rotation(App.Vector(0.984807753, -0.173648178, 0), App.Vector(0, 0, 1), App.Vector(-0.173648178, -0.984807753, 0), "ZXY"))
sketch18.addGeometry(Part.Circle(App.Vector(3.6, -4.8, 0), App.Vector(0, 0, 1), 0.8), False)
sketch18.addConstraint(Sketcher.Constraint("Diameter", 0, 1.6))
sketch18.addConstraint(Sketcher.Constraint("DistanceY", 0, 3, -1, 1, 4.75))
sketch18.addConstraint(Sketcher.Constraint("DistanceX", -1, 1, 0, 3, 3.590063))
pocket14 = body.newObject("PartDesign::Pocket", "Pocket013")
pocket14.Profile = sketch18
pocket14.Type = "UpToFirst"

# Sketch on an angled plane
sketch19 = body.newObject("Sketcher::SketchObject", "Sketch018")
sketch19.Placement = App.Placement(App.Vector(-9.075999, -51.47255, 0), App.Rotation(App.Vector(0.984807753, -0.173648178, 0), App.Vector(0, 0, 1), App.Vector(-0.173648178, -0.984807753, 0), "ZXY"))
sketch19.addGeometry(Part.Circle(App.Vector(-5.4, -4.8, 0), App.Vector(0, 0, 1), 0.8), False)
sketch19.addConstraint(Sketcher.Constraint("Diameter", 0, 1.6))
sketch19.addConstraint(Sketcher.Constraint("DistanceY", 0, 3, -1, 1, 4.75))
sketch19.addConstraint(Sketcher.Constraint("DistanceX", 0, 3, -1, 1, 5.409937))
pocket15 = body.newObject("PartDesign::Pocket", "Pocket014")
pocket15.Profile = sketch19
pocket15.Type = "UpToFirst"

# Sketch on an angled plane
sketch20 = body.newObject("Sketcher::SketchObject", "Sketch019")
sketch20.Placement = App.Placement(App.Vector(-9.075999, -51.47255, 0), App.Rotation(App.Vector(0.984807753, -0.173648178, 0), App.Vector(0, 0, 1), App.Vector(-0.173648178, -0.984807753, 0), "ZXY"))
sketch20.addGeometry(Part.Circle(App.Vector(-0.9, -8.8, 0), App.Vector(0, 0, 1), 1.1), False)
sketch20.addConstraint(Sketcher.Constraint("Diameter", 0, 2.2))
sketch20.addConstraint(Sketcher.Constraint("DistanceY", 0, 3, -1, 1, 8.75))
sketch20.addConstraint(Sketcher.Constraint("DistanceX", 0, 3, -1, 1, 0.909937))
pocket16 = body.newObject("PartDesign::Pocket", "Pocket015")
pocket16.Profile = sketch20
pocket16.Type = "UpToFirst"
doc.recompute()

fillet = body.newObject("PartDesign::Fillet", "Fillet")
fillet.Base = (pocket16, edges_at(pocket16, [(-5.511, -20.257, -22), (-5.511, -20.257, 22)]))
fillet.Radius = 5
doc.recompute()

fillet2 = body.newObject("PartDesign::Fillet", "Fillet001")
fillet2.Base = (fillet, edges_at(fillet, [(-4.526, -20.431, -20), (-4.526, -20.431, 20)]))
fillet2.Radius = 5
doc.recompute()

fillet3 = body.newObject("PartDesign::Fillet", "Fillet002")
fillet3.Base = (fillet2, edges_at(fillet2, [(6.799, -22.428, 20.965), (6.799, -22.428, -20.965)]))
fillet3.Radius = 5

# Sketch on XY plane
sketch21 = body.newObject("Sketcher::SketchObject", "Sketch020")
sketch21.AttachmentSupport = (doc.getObject("XY_Plane"), [""])
sketch21.MapMode = "FlatFace"
add_polygon(sketch21, [(-8, 27), (-15, -16), (27, -23), (37, 19)])  # lines 0-3
sketch21.addConstraint(Sketcher.Constraint("Perpendicular", 0, 1))
sketch21.addConstraint(Sketcher.Constraint("Parallel", 1, 3))
sketch21.addConstraint(Sketcher.Constraint("Angle", 0, Q("-100 deg")))
sketch21.addConstraint(Sketcher.Constraint("Distance", 1, 43.461109))
sketch21.addConstraint(Sketcher.Constraint("DistanceY", 0, 2, -1, 1, 15.885232))
sketch21.addConstraint(Sketcher.Constraint("DistanceX", -1, 1, 1, 2, 27.398462))
sketch21.addConstraint(Sketcher.Constraint("DistanceY", -1, 1, 3, 2, 27.135361))
sketch21.addConstraint(Sketcher.Constraint("DistanceX", 0, 2, 2, 2, 52.59132))
pocket17 = body.newObject("PartDesign::Pocket", "Pocket016")
pocket17.Profile = sketch21
pocket17.Length = 40.4
pocket17.Midplane = True

doc.recompute()
